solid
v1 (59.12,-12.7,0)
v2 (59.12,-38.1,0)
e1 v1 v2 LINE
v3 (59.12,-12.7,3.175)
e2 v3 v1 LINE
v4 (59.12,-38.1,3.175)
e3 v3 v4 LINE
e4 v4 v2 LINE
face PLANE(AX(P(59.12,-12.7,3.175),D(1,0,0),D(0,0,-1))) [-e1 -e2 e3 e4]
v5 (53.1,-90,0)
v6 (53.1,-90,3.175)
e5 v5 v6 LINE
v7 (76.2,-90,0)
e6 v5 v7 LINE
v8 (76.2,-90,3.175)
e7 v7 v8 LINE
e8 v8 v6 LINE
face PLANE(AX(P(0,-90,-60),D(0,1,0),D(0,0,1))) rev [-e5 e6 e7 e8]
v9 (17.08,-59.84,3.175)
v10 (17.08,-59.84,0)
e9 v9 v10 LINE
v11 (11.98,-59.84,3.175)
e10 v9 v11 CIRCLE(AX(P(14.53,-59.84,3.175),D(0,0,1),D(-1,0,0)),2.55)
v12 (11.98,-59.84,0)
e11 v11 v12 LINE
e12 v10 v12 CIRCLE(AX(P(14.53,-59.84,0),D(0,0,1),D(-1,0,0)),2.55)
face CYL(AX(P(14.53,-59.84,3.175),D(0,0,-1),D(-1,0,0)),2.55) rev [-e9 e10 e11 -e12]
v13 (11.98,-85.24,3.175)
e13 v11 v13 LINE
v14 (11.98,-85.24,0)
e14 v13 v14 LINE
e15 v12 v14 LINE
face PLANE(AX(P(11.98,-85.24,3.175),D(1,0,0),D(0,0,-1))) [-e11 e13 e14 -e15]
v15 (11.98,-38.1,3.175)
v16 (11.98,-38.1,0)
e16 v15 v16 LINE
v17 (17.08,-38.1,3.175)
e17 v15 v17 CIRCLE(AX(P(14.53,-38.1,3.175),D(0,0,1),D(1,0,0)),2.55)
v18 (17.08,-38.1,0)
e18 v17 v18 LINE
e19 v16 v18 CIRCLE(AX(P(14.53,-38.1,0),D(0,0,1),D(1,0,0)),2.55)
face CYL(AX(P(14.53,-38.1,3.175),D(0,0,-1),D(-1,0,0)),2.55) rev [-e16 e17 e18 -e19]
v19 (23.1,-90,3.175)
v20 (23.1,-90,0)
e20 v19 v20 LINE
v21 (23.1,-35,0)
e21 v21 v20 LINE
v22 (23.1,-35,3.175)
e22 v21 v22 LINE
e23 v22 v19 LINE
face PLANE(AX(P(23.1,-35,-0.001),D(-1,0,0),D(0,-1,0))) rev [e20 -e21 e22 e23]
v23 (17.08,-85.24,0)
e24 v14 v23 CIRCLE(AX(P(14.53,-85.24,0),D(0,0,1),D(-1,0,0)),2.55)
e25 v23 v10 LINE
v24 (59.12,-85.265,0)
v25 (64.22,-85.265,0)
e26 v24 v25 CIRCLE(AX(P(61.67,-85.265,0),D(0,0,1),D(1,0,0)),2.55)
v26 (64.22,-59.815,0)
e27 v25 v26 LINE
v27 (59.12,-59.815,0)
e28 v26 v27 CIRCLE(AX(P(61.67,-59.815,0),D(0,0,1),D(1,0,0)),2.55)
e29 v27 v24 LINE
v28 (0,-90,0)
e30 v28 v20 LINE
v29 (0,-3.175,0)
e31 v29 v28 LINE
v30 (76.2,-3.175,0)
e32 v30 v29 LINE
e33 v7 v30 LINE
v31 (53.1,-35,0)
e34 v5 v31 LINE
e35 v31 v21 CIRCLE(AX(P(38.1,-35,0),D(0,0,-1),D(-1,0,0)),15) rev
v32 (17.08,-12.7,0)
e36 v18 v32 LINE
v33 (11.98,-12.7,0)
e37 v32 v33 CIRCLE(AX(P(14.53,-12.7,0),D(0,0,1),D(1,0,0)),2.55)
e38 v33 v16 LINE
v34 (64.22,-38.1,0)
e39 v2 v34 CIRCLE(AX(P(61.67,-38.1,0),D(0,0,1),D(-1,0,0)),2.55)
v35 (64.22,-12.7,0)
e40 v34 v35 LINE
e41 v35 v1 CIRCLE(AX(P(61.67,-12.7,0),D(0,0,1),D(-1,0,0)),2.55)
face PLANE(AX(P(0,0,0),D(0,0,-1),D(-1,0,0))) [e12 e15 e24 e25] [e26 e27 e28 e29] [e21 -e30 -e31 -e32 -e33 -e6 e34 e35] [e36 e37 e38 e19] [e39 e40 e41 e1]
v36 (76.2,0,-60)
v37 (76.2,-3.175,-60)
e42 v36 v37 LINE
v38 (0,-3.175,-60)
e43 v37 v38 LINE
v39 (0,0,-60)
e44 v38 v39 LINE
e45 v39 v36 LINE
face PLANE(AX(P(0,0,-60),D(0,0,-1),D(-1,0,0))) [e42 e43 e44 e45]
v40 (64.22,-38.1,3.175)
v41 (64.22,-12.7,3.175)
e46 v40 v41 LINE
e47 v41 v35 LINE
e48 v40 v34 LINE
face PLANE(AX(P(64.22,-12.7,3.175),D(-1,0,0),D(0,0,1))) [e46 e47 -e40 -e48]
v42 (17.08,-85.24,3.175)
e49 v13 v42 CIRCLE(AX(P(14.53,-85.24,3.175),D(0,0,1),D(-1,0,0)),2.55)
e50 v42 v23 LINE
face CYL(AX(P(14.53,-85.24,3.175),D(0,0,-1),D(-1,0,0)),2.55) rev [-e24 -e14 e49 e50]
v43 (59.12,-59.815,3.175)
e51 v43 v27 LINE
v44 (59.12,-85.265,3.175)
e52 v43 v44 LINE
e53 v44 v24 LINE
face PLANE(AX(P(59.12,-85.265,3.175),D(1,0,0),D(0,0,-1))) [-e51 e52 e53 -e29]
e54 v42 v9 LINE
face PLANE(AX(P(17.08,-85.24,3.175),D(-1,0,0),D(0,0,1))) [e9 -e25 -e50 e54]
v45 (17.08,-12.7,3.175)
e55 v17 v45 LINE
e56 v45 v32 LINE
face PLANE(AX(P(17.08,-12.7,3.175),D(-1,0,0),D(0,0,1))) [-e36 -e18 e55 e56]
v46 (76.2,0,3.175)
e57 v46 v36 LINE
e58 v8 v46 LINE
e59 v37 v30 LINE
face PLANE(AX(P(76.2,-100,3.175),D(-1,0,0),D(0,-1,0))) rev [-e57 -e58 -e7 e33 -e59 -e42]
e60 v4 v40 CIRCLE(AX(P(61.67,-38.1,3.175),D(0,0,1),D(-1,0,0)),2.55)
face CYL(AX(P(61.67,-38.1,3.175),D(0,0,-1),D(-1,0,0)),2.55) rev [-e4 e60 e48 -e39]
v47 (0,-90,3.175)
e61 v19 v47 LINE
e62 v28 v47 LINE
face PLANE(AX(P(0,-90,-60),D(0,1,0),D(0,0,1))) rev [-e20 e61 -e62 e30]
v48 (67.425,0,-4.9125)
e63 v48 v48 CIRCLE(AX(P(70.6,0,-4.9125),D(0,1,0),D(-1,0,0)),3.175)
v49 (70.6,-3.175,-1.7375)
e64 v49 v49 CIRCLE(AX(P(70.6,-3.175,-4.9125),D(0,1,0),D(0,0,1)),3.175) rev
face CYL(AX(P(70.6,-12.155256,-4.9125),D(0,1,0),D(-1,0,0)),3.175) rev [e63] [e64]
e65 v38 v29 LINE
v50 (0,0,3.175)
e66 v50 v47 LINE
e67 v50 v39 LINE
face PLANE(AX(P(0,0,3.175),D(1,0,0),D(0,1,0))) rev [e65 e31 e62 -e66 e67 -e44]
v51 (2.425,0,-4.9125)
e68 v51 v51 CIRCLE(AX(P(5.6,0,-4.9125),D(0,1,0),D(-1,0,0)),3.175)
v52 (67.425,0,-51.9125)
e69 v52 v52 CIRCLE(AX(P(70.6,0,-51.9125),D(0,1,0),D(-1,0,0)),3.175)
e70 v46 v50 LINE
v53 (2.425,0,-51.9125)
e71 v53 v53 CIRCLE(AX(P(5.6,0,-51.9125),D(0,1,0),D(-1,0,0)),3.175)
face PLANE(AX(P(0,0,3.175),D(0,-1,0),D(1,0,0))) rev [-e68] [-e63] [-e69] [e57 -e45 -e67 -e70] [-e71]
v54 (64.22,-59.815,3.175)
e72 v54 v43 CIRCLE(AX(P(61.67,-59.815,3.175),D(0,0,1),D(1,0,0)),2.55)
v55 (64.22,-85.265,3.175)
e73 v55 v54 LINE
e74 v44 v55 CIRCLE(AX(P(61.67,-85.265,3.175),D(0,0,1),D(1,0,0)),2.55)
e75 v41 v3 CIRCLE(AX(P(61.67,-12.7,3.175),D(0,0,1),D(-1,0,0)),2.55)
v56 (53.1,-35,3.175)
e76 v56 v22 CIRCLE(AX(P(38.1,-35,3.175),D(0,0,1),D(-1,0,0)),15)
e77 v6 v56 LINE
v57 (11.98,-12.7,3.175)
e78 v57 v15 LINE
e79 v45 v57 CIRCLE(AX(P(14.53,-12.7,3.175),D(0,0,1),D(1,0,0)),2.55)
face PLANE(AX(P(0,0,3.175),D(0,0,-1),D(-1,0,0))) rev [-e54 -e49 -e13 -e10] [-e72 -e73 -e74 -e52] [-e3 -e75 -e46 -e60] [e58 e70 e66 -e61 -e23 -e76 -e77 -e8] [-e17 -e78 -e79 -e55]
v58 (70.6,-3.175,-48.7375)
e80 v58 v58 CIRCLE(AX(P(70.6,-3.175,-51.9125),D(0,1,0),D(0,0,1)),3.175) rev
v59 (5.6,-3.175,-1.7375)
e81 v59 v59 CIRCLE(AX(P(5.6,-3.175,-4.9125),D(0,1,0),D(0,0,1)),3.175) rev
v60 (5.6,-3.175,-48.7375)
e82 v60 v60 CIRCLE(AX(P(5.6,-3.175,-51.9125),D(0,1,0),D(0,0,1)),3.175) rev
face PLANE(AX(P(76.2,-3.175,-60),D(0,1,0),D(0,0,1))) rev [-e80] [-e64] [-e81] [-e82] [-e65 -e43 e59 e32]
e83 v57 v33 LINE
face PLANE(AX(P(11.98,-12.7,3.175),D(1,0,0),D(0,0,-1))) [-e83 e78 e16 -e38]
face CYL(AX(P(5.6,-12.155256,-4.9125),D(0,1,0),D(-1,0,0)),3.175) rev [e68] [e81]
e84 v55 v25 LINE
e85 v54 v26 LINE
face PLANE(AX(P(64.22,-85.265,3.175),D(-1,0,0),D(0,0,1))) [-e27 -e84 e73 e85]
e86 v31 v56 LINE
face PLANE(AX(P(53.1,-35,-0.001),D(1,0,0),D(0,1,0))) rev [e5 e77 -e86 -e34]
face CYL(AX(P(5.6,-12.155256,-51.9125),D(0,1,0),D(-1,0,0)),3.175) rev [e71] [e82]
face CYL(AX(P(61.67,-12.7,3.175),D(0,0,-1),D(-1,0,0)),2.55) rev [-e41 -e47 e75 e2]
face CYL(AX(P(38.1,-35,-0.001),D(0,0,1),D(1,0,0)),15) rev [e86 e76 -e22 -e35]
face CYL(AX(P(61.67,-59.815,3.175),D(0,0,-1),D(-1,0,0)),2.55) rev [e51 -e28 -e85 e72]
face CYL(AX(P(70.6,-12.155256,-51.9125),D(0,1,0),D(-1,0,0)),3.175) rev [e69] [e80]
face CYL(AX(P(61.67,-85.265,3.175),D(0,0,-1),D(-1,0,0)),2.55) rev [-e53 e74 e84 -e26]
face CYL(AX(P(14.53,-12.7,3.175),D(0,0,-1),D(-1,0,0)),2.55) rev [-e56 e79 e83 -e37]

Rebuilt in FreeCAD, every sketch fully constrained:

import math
import FreeCAD as App
import Part
import Sketcher
Q = App.Units.Quantity

doc = App.newDocument("Part")
body = doc.addObject("PartDesign::Body", "Body")

sketch1 = body.newObject("Sketcher::SketchObject", "Sketch")
sketch1.AttachmentSupport = (doc.getObject("XY_Plane"), [""])
sketch1.MapMode = "FlatFace"
sketch1.addGeometry([
    Part.LineSegment(App.Vector(0, 0, 0), App.Vector(0, -100, 0)),
    Part.LineSegment(App.Vector(0, -100, 0), App.Vector(76.2, -100, 0)),
    Part.LineSegment(App.Vector(76.2, -100, 0), App.Vector(76.2, 0, 0)),
    Part.LineSegment(App.Vector(76.2, 0, 0), App.Vector(0, 0, 0)),
    Part.LineSegment(App.Vector(17.1, -59.8, 0), App.Vector(17.1, -85.2, 0)),
    Part.ArcOfCircle(Part.Circle(App.Vector(14.5, -85.2, 0), App.Vector(0, 0, 1), 2.5), math.radians(180), math.radians(360)),
    Part.LineSegment(App.Vector(12, -85.2, 0), App.Vector(12, -59.8, 0)),
    Part.ArcOfCircle(Part.Circle(App.Vector(14.5, -59.8, 0), App.Vector(0, 0, 1), 2.5), math.radians(0), math.radians(180)),
    Part.ArcOfCircle(Part.Circle(App.Vector(61.7, -85.3, 0), App.Vector(0, 0, 1), 2.5), math.radians(180), math.radians(360)),
    Part.LineSegment(App.Vector(59.1, -85.3, 0), App.Vector(59.1, -59.8, 0)),
    Part.ArcOfCircle(Part.Circle(App.Vector(61.7, -59.8, 0), App.Vector(0, 0, 1), 2.5), math.radians(0), math.radians(180)),
    Part.LineSegment(App.Vector(64.2, -59.8, 0), App.Vector(64.2, -85.3, 0)),
    Part.ArcOfCircle(Part.Circle(App.Vector(14.5, -12.7, 0), App.Vector(0, 0, 1), 2.5), math.radians(0), math.radians(180)),
    Part.LineSegment(App.Vector(17.1, -12.7, 0), App.Vector(17.1, -38.1, 0)),
    Part.ArcOfCircle(Part.Circle(App.Vector(14.5, -38.1, 0), App.Vector(0, 0, 1), 2.5), math.radians(180), math.radians(360)),
    Part.LineSegment(App.Vector(12, -38.1, 0), App.Vector(12, -12.7, 0)),
    Part.LineSegment(App.Vector(59.1, -38.1, 0), App.Vector(59.1, -12.7, 0)),
    Part.ArcOfCircle(Part.Circle(App.Vector(61.7, -12.7, 0), App.Vector(0, 0, 1), 2.5), math.radians(0), math.radians(180)),
    Part.LineSegment(App.Vector(64.2, -12.7, 0), App.Vector(64.2, -38.1, 0)),
    Part.ArcOfCircle(Part.Circle(App.Vector(61.7, -38.1, 0), App.Vector(0, 0, 1), 2.5), math.radians(180), math.radians(360)),
], False)
sketch1.addConstraint([
    Sketcher.Constraint("Coincident", 0, 2, 1, 1),
    Sketcher.Constraint("Coincident", 1, 2, 2, 1),
    Sketcher.Constraint("Coincident", 2, 2, 3, 1),
    Sketcher.Constraint("Coincident", 3, 2, 0, 1),
    Sketcher.Constraint("Tangent", 4, 2, 5, 2),
    Sketcher.Constraint("Tangent", 5, 1, 6, 1),
    Sketcher.Constraint("Tangent", 6, 2, 7, 2),
    Sketcher.Constraint("Tangent", 7, 1, 4, 1),
    Sketcher.Constraint("Tangent", 8, 1, 9, 1),
    Sketcher.Constraint("Tangent", 9, 2, 10, 2),
    Sketcher.Constraint("Tangent", 10, 1, 11, 1),
    Sketcher.Constraint("Tangent", 11, 2, 8, 2),
    Sketcher.Constraint("Tangent", 12, 1, 13, 1),
    Sketcher.Constraint("Tangent", 13, 2, 14, 2),
    Sketcher.Constraint("Tangent", 14, 1, 15, 1),
    Sketcher.Constraint("Tangent", 15, 2, 12, 2),
    Sketcher.Constraint("Tangent", 16, 2, 17, 2),
    Sketcher.Constraint("Tangent", 17, 1, 18, 1),
    Sketcher.Constraint("Tangent", 18, 2, 19, 2),
    Sketcher.Constraint("Tangent", 19, 1, 16, 1),
    Sketcher.Constraint("Vertical", 0),
    Sketcher.Constraint("Horizontal", 1),
    Sketcher.Constraint("Vertical", 2),
    Sketcher.Constraint("Horizontal", 3),
    Sketcher.Constraint("Vertical", 4),
    Sketcher.Constraint("Vertical", 6),
    Sketcher.Constraint("Vertical", 9),
    Sketcher.Constraint("Vertical", 11),
    Sketcher.Constraint("Vertical", 13),
    Sketcher.Constraint("Vertical", 15),
    Sketcher.Constraint("Vertical", 16),
    Sketcher.Constraint("Vertical", 18),
    Sketcher.Constraint("Coincident", 3, 2, -1, 1),
    Sketcher.Constraint("Equal", 7, 8),
    Sketcher.Constraint("Equal", 10, 12),
    Sketcher.Constraint("Equal", 14, 17),
    Sketcher.Constraint("Horizontal", 12, 3, 17, 3),
    Sketcher.Constraint("Horizontal", 14, 3, 19, 3),
    Sketcher.Constraint("Vertical", 7, 3, 12, 3),
    Sketcher.Constraint("Vertical", 10, 3, 17, 3),
    Sketcher.Constraint("Equal", 6, 13),
    Sketcher.Constraint("DistanceY", 0, 2, 0, 1, Q("100 mm")),
    Sketcher.Constraint("Radius", 5, Q("2.55 mm")),
    Sketcher.Constraint("DistanceX", 1, 1, 1, 2, Q("76.2 mm")),
    Sketcher.Constraint("DistanceY", 4, 2, 4, 1, Q("25.4 mm")),
    Sketcher.Constraint("DistanceY", 9, 1, 9, 2, Q("25.45 mm")),
    Sketcher.Constraint("DistanceY", 12, 3, -1, 1, Q("12.7 mm")),
    Sketcher.Constraint("DistanceX", -1, 1, 5, 3, Q("14.53 mm")),
    Sketcher.Constraint("DistanceY", 5, 3, -1, 1, Q("85.24 mm")),
    Sketcher.Constraint("DistanceX", -1, 1, 8, 3, Q("61.67 mm")),
    Sketcher.Constraint("DistanceY", 8, 3, -1, 1, Q("85.265 mm")),
])
pad1 = body.newObject("PartDesign::Pad", "Pad")
pad1.Profile = sketch1
pad1.Length = 3.175

sketch2 = body.newObject("Sketcher::SketchObject", "Sketch001")
sketch2.AttachmentSupport = (doc.getObject("XY_Plane"), [""])
sketch2.MapMode = "FlatFace"
sketch2.AttachmentOffset = App.Placement(App.Vector(0, 0, 3.175), App.Rotation())
sketch2.addGeometry([
    Part.LineSegment(App.Vector(23, -35, 0), App.Vector(23, -100, 0)),
    Part.LineSegment(App.Vector(23, -100, 0), App.Vector(53, -100, 0)),
    Part.LineSegment(App.Vector(53, -100, 0), App.Vector(53, -35, 0)),
    Part.ArcOfCircle(Part.Circle(App.Vector(38, -35, 0), App.Vector(0, 0, 1), 15), math.radians(0), math.radians(180)),
], False)
sketch2.addConstraint([
    Sketcher.Constraint("Coincident", 0, 2, 1, 1),
    Sketcher.Constraint("Coincident", 1, 2, 2, 1),
    Sketcher.Constraint("Tangent", 2, 2, 3, 1),
    Sketcher.Constraint("Tangent", 3, 2, 0, 1),
    Sketcher.Constraint("Vertical", 0),
    Sketcher.Constraint("Horizontal", 1),
    Sketcher.Constraint("Vertical", 2),
    Sketcher.Constraint("Radius", 3, Q("15 mm")),
    Sketcher.Constraint("DistanceY", 0, 2, 0, 1, Q("65 mm")),
    Sketcher.Constraint("DistanceY", 3, 3, -1, 1, Q("35 mm")),
    Sketcher.Constraint("DistanceX", -1, 1, 3, 3, Q("38.1 mm")),
])
pocket1 = body.newObject("PartDesign::Pocket", "Pocket")
pocket1.Profile = sketch2
pocket1.Type = "UpToFirst"

sketch3 = body.newObject("Sketcher::SketchObject", "Sketch002")
sketch3.AttachmentSupport = (doc.getObject("XY_Plane"), [""])
sketch3.MapMode = "FlatFace"
sketch3.addGeometry([
    Part.LineSegment(App.Vector(76.2, 0, 0), App.Vector(76.2, -3.2, 0)),
    Part.LineSegment(App.Vector(76.2, -3.2, 0), App.Vector(0, -3.2, 0)),
    Part.LineSegment(App.Vector(0, -3.2, 0), App.Vector(0, 0, 0)),
    Part.LineSegment(App.Vector(0, 0, 0), App.Vector(76.2, 0, 0)),
], False)
sketch3.addConstraint([
    Sketcher.Constraint("Coincident", 0, 2, 1, 1),
    Sketcher.Constraint("Coincident", 1, 2, 2, 1),
    Sketcher.Constraint("Coincident", 2, 2, 3, 1),
    Sketcher.Constraint("Coincident", 3, 2, 0, 1),
    Sketcher.Constraint("Vertical", 0),
    Sketcher.Constraint("Horizontal", 1),
    Sketcher.Constraint("Vertical", 2),
    Sketcher.Constraint("Horizontal", 3),
    Sketcher.Constraint("Coincident", 2, 2, -1, 1),
    Sketcher.Constraint("DistanceX", 1, 2, 1, 1, Q("76.2 mm")),
    Sketcher.Constraint("DistanceY", 0, 2, 0, 1, Q("3.175 mm")),
])
pad2 = body.newObject("PartDesign::Pad", "Pad001")
pad2.Profile = sketch3
pad2.Length = 60
pad2.Reversed = True

sketch4 = body.newObject("Sketcher::SketchObject", "Sketch003")
sketch4.AttachmentSupport = (doc.getObject("XZ_Plane"), [""])
sketch4.MapMode = "FlatFace"
sketch4.addGeometry([
    Part.Circle(App.Vector(5.6, -51.9, 0), App.Vector(0, 0, 1), 3.2),
    Part.Circle(App.Vector(5.6, -4.9, 0), App.Vector(0, 0, 1), 3.2),
    Part.Circle(App.Vector(70.6, -51.9, 0), App.Vector(0, 0, 1), 3.2),
    Part.Circle(App.Vector(70.6, -4.9, 0), App.Vector(0, 0, 1), 3.2),
], False)
sketch4.addConstraint([
    Sketcher.Constraint("Equal", 0, 1),
    Sketcher.Constraint("Equal", 1, 2),
    Sketcher.Constraint("Equal", 2, 3),
    Sketcher.Constraint("Horizontal", 0, 3, 2, 3),
    Sketcher.Constraint("Horizontal", 1, 3, 3, 3),
    Sketcher.Constraint("Vertical", 0, 3, 1, 3),
    Sketcher.Constraint("Vertical", 2, 3, 3, 3),
    Sketcher.Constraint("Diameter", 0, Q("6.35 mm")),
    Sketcher.Constraint("DistanceY", 0, 3, 1, 3, Q("47 mm")),
    Sketcher.Constraint("DistanceX", 0, 3, 2, 3, Q("65 mm")),
    Sketcher.Constraint("DistanceX", -1, 1, 0, 3, Q("5.6 mm")),
    Sketcher.Constraint("DistanceY", 0, 3, -1, 1, Q("51.9125 mm")),
])
pocket2 = body.newObject("PartDesign::Pocket", "Pocket001")
pocket2.Profile = sketch4
pocket2.Length = 3.175
pocket2.Reversed = True

sketch5 = body.newObject("Sketcher::SketchObject", "Sketch004")
sketch5.AttachmentSupport = (doc.getObject("XY_Plane"), [""])
sketch5.MapMode = "FlatFace"
sketch5.AttachmentOffset = App.Placement(App.Vector(0, 0, 3.175), App.Rotation())
sketch5.addGeometry([
    Part.LineSegment(App.Vector(0, -90, 0), App.Vector(0, -100, 0)),
    Part.LineSegment(App.Vector(0, -100, 0), App.Vector(76, -100, 0)),
    Part.LineSegment(App.Vector(76, -100, 0), App.Vector(76, -90, 0)),
    Part.LineSegment(App.Vector(76, -90, 0), App.Vector(0, -90, 0)),
], False)
sketch5.addConstraint([
    Sketcher.Constraint("Coincident", 0, 2, 1, 1),
    Sketcher.Constraint("Coincident", 1, 2, 2, 1),
    Sketcher.Constraint("Coincident", 2, 2, 3, 1),
    Sketcher.Constraint("Coincident", 3, 2, 0, 1),
    Sketcher.Constraint("Vertical", 0),
    Sketcher.Constraint("Horizontal", 1),
    Sketcher.Constraint("Vertical", 2),
    Sketcher.Constraint("Horizontal", 3),
    Sketcher.Constraint("PointOnObject", 0, 2, -2),
    Sketcher.Constraint("DistanceY", 0, 2, 0, 1, Q("10 mm")),
    Sketcher.Constraint("DistanceX", 1, 1, 1, 2, Q("76.2 mm")),
    Sketcher.Constraint("DistanceY", 0, 2, -1, 1, Q("100 mm")),
])
pocket3 = body.newObject("PartDesign::Pocket", "Pocket002")
pocket3.Profile = sketch5
pocket3.Type = "ThroughAll"

doc.recompute()
